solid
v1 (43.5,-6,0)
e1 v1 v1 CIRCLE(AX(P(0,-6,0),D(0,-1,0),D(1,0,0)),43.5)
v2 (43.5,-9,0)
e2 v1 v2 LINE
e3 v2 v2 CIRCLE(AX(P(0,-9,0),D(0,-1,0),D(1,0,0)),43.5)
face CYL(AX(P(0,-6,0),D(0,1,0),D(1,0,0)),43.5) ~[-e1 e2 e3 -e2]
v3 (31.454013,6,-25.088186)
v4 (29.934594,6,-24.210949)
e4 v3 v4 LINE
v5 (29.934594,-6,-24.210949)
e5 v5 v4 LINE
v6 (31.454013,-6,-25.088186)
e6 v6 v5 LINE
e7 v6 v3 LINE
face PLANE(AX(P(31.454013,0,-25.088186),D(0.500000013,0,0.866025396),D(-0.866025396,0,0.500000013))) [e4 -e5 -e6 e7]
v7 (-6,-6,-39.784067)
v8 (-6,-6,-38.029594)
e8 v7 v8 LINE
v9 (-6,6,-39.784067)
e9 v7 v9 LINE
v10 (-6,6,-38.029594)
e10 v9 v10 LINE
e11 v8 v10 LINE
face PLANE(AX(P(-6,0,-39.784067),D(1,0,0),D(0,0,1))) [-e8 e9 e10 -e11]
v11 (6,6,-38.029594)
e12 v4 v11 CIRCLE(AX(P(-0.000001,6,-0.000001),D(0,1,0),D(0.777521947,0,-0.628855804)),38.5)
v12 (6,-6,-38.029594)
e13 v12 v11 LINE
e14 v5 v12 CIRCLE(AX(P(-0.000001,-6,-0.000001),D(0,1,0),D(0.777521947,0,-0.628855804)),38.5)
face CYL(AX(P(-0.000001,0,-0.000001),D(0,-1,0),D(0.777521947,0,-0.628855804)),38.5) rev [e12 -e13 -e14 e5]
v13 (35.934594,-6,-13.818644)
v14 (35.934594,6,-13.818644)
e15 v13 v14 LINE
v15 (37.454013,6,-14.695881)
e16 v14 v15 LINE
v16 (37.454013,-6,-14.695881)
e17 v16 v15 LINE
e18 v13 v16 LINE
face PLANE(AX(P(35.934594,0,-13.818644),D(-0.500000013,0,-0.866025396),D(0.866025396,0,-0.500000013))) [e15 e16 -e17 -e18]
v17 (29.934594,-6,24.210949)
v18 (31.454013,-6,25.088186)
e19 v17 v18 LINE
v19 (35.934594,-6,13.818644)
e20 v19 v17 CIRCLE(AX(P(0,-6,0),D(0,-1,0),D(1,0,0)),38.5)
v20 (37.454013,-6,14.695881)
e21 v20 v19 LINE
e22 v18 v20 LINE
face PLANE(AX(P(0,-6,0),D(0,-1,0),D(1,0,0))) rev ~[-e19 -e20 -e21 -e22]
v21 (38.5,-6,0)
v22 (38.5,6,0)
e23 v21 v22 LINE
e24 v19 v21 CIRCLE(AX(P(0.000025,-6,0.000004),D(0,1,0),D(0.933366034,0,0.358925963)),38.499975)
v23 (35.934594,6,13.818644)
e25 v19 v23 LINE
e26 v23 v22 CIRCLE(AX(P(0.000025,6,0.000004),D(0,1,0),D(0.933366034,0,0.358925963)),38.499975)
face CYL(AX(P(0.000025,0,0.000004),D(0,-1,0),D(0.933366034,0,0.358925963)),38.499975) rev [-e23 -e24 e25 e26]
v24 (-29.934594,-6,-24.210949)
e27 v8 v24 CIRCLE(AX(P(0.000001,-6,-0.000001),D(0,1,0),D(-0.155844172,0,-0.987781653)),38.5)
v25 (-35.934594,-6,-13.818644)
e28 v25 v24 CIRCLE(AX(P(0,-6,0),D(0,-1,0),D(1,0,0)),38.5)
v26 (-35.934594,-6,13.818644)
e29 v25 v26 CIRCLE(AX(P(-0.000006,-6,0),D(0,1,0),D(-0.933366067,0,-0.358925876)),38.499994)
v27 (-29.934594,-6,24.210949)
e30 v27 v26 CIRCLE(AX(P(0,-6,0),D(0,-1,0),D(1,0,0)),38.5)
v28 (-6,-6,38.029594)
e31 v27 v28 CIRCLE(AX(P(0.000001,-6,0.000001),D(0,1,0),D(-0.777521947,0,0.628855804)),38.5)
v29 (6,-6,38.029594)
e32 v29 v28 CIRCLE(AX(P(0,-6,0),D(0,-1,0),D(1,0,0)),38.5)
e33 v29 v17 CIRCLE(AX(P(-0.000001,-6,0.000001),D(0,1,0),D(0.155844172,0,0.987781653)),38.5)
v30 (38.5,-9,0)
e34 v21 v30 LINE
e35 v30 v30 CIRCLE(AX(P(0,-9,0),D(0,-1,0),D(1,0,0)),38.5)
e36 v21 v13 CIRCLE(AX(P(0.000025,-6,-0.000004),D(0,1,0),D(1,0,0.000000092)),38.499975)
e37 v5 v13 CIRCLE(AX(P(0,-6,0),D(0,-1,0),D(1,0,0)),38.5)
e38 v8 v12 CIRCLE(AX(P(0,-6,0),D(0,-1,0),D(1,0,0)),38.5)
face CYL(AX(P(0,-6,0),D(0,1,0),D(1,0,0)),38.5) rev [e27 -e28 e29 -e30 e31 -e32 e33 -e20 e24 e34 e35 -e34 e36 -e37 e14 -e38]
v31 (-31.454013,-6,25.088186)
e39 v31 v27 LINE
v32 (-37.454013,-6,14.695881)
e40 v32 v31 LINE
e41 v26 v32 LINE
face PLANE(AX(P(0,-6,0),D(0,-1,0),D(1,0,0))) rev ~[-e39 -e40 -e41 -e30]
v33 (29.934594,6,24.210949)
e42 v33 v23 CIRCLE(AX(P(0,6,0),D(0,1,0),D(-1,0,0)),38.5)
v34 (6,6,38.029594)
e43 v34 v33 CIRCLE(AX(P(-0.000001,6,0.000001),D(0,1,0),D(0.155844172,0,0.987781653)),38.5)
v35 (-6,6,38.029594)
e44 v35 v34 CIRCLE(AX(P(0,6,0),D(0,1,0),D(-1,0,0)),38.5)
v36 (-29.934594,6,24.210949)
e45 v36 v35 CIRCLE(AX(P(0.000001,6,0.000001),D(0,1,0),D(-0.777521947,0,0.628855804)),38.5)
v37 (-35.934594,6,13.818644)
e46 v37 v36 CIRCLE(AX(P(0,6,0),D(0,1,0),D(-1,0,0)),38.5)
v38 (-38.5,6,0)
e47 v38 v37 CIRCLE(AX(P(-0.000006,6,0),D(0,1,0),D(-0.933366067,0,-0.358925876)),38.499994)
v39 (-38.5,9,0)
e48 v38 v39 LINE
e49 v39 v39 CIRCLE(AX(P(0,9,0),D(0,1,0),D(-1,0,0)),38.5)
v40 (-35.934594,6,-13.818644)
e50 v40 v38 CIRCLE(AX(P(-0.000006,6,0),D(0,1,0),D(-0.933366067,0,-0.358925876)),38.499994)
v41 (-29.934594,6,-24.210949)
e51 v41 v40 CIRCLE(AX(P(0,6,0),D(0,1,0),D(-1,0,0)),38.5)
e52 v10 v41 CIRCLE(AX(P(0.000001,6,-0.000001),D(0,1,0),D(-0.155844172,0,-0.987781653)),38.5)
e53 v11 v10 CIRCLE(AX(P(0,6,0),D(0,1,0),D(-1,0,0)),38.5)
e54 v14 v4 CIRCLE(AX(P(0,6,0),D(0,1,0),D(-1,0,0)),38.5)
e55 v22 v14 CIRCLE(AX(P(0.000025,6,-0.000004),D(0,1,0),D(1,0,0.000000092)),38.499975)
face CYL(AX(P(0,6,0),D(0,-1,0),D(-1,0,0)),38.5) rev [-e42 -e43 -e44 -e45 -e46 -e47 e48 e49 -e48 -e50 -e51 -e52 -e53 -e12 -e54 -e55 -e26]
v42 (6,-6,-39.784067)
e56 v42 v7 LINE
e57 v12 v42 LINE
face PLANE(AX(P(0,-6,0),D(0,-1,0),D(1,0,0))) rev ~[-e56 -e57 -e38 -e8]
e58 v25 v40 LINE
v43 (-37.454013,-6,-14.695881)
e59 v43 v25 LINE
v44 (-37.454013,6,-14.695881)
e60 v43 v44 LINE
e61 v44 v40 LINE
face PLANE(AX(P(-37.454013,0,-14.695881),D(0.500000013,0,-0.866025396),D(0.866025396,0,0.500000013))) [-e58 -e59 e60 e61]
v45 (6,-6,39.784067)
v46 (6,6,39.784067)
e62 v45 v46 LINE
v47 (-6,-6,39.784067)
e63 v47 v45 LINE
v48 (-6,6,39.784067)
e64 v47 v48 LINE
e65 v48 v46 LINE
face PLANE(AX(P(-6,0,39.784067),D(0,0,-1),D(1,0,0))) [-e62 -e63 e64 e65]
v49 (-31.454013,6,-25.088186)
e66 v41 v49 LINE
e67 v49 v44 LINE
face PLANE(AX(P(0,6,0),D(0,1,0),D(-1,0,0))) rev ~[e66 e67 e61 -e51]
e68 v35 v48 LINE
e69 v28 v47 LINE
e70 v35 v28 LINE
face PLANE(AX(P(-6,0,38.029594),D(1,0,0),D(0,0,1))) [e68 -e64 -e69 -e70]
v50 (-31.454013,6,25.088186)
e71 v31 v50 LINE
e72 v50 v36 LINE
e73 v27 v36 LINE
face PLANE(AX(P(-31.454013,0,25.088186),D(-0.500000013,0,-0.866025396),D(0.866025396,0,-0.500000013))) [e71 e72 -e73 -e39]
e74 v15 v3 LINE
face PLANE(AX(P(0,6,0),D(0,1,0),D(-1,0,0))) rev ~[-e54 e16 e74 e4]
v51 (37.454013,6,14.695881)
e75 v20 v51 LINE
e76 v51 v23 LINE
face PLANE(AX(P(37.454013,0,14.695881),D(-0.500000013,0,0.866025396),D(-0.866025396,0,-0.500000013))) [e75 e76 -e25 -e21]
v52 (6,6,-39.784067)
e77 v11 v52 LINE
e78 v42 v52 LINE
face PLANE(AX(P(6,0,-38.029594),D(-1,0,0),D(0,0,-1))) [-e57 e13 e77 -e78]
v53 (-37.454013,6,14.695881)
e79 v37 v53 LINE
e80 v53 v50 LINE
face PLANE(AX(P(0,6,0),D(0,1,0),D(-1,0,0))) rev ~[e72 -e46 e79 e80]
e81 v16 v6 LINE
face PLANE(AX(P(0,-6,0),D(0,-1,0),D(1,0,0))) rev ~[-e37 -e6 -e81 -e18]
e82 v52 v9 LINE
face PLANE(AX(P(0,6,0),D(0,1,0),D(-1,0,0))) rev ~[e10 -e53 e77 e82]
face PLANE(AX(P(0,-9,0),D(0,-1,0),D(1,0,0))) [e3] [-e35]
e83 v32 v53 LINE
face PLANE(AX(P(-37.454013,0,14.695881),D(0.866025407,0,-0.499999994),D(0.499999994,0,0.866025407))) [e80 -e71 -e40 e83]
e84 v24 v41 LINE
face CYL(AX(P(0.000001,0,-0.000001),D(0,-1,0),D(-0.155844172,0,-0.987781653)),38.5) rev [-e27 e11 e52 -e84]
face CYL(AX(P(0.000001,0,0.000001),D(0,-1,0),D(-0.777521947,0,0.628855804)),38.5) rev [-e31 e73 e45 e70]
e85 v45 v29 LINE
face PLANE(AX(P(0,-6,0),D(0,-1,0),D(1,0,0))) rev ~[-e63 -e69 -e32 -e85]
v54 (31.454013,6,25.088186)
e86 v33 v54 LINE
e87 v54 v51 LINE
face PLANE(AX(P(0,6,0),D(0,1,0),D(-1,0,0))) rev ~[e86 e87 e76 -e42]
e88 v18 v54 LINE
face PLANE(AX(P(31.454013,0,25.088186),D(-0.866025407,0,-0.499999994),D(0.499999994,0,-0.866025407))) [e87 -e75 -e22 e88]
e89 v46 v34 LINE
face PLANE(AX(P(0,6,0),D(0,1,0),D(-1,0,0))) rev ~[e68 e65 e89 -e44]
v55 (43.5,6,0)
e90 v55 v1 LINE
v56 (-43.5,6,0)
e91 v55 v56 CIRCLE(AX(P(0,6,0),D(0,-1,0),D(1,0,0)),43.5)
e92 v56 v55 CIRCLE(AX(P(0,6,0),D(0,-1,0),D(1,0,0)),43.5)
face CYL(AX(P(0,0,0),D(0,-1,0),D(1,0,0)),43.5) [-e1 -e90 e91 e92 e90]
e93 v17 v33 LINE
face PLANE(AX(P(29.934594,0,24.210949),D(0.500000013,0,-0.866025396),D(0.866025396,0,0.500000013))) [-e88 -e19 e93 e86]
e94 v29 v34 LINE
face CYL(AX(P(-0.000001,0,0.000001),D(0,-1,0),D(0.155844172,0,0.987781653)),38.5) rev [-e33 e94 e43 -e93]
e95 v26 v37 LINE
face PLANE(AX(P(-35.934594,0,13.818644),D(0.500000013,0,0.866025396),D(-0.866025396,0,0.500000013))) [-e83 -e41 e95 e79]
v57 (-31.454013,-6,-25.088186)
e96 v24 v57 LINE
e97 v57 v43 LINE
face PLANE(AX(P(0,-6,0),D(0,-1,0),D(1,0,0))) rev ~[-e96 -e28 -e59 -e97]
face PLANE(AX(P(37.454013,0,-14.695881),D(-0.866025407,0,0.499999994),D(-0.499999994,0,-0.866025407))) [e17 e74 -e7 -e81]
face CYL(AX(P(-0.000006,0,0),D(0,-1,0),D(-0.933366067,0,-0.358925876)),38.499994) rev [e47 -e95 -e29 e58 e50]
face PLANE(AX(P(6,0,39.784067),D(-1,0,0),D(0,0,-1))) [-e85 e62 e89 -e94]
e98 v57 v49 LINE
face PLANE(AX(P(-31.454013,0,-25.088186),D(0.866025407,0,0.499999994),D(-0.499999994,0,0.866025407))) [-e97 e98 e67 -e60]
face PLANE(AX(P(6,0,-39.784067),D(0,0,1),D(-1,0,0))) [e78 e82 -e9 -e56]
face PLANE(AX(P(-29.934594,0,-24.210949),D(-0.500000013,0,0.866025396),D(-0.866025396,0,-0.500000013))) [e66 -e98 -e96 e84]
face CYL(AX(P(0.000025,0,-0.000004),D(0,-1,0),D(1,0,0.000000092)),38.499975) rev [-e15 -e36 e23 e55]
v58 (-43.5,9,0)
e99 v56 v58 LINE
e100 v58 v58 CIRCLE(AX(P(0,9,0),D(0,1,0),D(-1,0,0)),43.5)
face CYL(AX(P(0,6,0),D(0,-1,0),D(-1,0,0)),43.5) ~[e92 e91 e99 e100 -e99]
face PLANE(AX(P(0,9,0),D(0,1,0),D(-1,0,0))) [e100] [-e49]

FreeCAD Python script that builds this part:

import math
import FreeCAD as App
import Part
import Sketcher
Q = App.Units.Quantity

doc = App.newDocument("Part")
body = doc.addObject("PartDesign::Body", "Body")

sketch1 = body.newObject("Sketcher::SketchObject", "Sketch")
sketch1.AttachmentSupport = (doc.getObject("XZ_Plane"), [""])
sketch1.MapMode = "FlatFace"
sketch1.addGeometry([
    Part.Circle(App.Vector(0, 0, 0), App.Vector(0, 0, 1), 43.5),
    Part.ArcOfCircle(Part.Circle(App.Vector(0, 0, 0), App.Vector(0, 0, 1), 38.5), math.radians(99), math.radians(141)),
    Part.LineSegment(App.Vector(-6, 38, 0), App.Vector(-6, 39.8, 0)),
    Part.LineSegment(App.Vector(-6, 39.8, 0), App.Vector(6, 39.8, 0)),
    Part.LineSegment(App.Vector(6, 39.8, 0), App.Vector(6, 38, 0)),
    Part.ArcOfCircle(Part.Circle(App.Vector(0, 0, 0), App.Vector(0, 0, 1), 38.5), math.radians(39), math.radians(81)),
    Part.LineSegment(App.Vector(29.9, 24.2, 0), App.Vector(31.5, 25.1, 0)),
    Part.LineSegment(App.Vector(31.5, 25.1, 0), App.Vector(37.5, 14.7, 0)),
    Part.LineSegment(App.Vector(37.5, 14.7, 0), App.Vector(35.9, 13.8, 0)),
    Part.ArcOfCircle(Part.Circle(App.Vector(0, 0, 0), App.Vector(0, 0, 1), 38.5), math.radians(0), math.radians(21)),
    Part.ArcOfCircle(Part.Circle(App.Vector(0, 0, 0), App.Vector(0, 0, 1), 38.5), math.radians(-21), math.radians(0)),
    Part.LineSegment(App.Vector(35.9, -13.8, 0), App.Vector(37.5, -14.7, 0)),
    Part.LineSegment(App.Vector(37.5, -14.7, 0), App.Vector(31.5, -25.1, 0)),
    Part.LineSegment(App.Vector(31.5, -25.1, 0), App.Vector(29.9, -24.2, 0)),
    Part.ArcOfCircle(Part.Circle(App.Vector(0, 0, 0), App.Vector(0, 0, 1), 38.5), math.radians(-81), math.radians(-39)),
    Part.LineSegment(App.Vector(6, -38, 0), App.Vector(6, -39.8, 0)),
    Part.LineSegment(App.Vector(6, -39.8, 0), App.Vector(-6, -39.8, 0)),
    Part.LineSegment(App.Vector(-6, -39.8, 0), App.Vector(-6, -38, 0)),
    Part.ArcOfCircle(Part.Circle(App.Vector(0, 0, 0), App.Vector(0, 0, 1), 38.5), math.radians(-141), math.radians(-99)),
    Part.LineSegment(App.Vector(-29.9, -24.2, 0), App.Vector(-31.5, -25.1, 0)),
    Part.LineSegment(App.Vector(-31.5, -25.1, 0), App.Vector(-37.5, -14.7, 0)),
    Part.LineSegment(App.Vector(-37.5, -14.7, 0), App.Vector(-35.9, -13.8, 0)),
    Part.ArcOfCircle(Part.Circle(App.Vector(0, 0, 0), App.Vector(0, 0, 1), 38.5), math.radians(159), math.radians(201)),
    Part.LineSegment(App.Vector(-35.9, 13.8, 0), App.Vector(-37.5, 14.7, 0)),
    Part.LineSegment(App.Vector(-37.5, 14.7, 0), App.Vector(-31.5, 25.1, 0)),
    Part.LineSegment(App.Vector(-31.5, 25.1, 0), App.Vector(-29.9, 24.2, 0)),
], False)
sketch1.addConstraint([
    Sketcher.Constraint("Coincident", 1, 1, 2, 1),
    Sketcher.Constraint("Coincident", 2, 2, 3, 1),
    Sketcher.Constraint("Coincident", 3, 2, 4, 1),
    Sketcher.Constraint("Coincident", 4, 2, 5, 2),
    Sketcher.Constraint("Coincident", 5, 1, 6, 1),
    Sketcher.Constraint("Coincident", 6, 2, 7, 1),
    Sketcher.Constraint("Coincident", 7, 2, 8, 1),
    Sketcher.Constraint("Coincident", 8, 2, 9, 2),
    Sketcher.Constraint("Tangent", 9, 1, 10, 2),
    Sketcher.Constraint("Coincident", 10, 1, 11, 1),
    Sketcher.Constraint("Coincident", 11, 2, 12, 1),
    Sketcher.Constraint("Coincident", 12, 2, 13, 1),
    Sketcher.Constraint("Coincident", 13, 2, 14, 2),
    Sketcher.Constraint("Coincident", 14, 1, 15, 1),
    Sketcher.Constraint("Coincident", 15, 2, 16, 1),
    Sketcher.Constraint("Coincident", 16, 2, 17, 1),
    Sketcher.Constraint("Coincident", 17, 2, 18, 2),
    Sketcher.Constraint("Coincident", 18, 1, 19, 1),
    Sketcher.Constraint("Coincident", 19, 2, 20, 1),
    Sketcher.Constraint("Coincident", 20, 2, 21, 1),
    Sketcher.Constraint("Coincident", 21, 2, 22, 2),
    Sketcher.Constraint("Coincident", 22, 1, 23, 1),
    Sketcher.Constraint("Coincident", 23, 2, 24, 1),
    Sketcher.Constraint("Coincident", 24, 2, 25, 1),
    Sketcher.Constraint("Coincident", 25, 2, 1, 2),
    Sketcher.Constraint("Vertical", 2),
    Sketcher.Constraint("Horizontal", 3),
    Sketcher.Constraint("Vertical", 4),
    Sketcher.Constraint("Vertical", 15),
    Sketcher.Constraint("Horizontal", 16),
    Sketcher.Constraint("Vertical", 17),
    Sketcher.Constraint("Coincident", 0, 3, -1, 1),
    Sketcher.Constraint("Coincident", 1, 3, -1, 1),
    Sketcher.Constraint("Coincident", 5, 3, -1, 1),
    Sketcher.Constraint("Coincident", 14, 3, -1, 1),
    Sketcher.Constraint("Coincident", 18, 3, -1, 1),
    Sketcher.Constraint("Coincident", 22, 3, -1, 1),
    Sketcher.Constraint("Equal", 1, 5),
    Sketcher.Constraint("Equal", 9, 10),
    Sketcher.Constraint("Equal", 5, 14),
    Sketcher.Constraint("Equal", 14, 18),
    Sketcher.Constraint("Symmetric", 2, 2, 15, 2, -1, 1),
    Sketcher.Constraint("Symmetric", 6, 2, 19, 2, -1, 1),
    Sketcher.Constraint("Symmetric", 7, 2, 20, 2, -1, 1),
    Sketcher.Constraint("Symmetric", 8, 2, 21, 2, -1, 1),
    Sketcher.Constraint("Symmetric", 10, 1, 22, 1, -1, 1),
    Sketcher.Constraint("Symmetric", 11, 2, 23, 2, -1, 1),
    Sketcher.Constraint("Symmetric", 12, 2, 24, 2, -1, 1),
    Sketcher.Constraint("Symmetric", 12, 2, 19, 2, -2),
    Sketcher.Constraint("Symmetric", 11, 2, 20, 2, -2),
    Sketcher.Constraint("PointOnObject", 9, 1, -1),
    Sketcher.Constraint("Perpendicular", 6, 7),
    Sketcher.Constraint("Perpendicular", 7, 8),
    Sketcher.Constraint("Perpendicular", 11, 12),
    Sketcher.Constraint("Perpendicular", 12, 13),
    Sketcher.Constraint("Parallel", 8, 19),
    Sketcher.Constraint("Perpendicular", 24, 25),
    Sketcher.Constraint("Horizontal", 1, 1, 4, 2),
    Sketcher.Constraint("Horizontal", 14, 1, 17, 2),
    Sketcher.Constraint("Equal", 6, 8),
    Sketcher.Constraint("Diameter", 0, Q("87 mm")),
    Sketcher.Constraint("Radius", 1, Q("38.5 mm")),
    Sketcher.Constraint("DistanceX", 3, 1, 3, 2, Q("12 mm")),
    Sketcher.Constraint("Angle", 6, Q("30.000001 deg")),
    Sketcher.Constraint("Distance", 7, Q("12 mm")),
    Sketcher.Constraint("DistanceX", -1, 1, 9, 1, Q("38.5 mm")),
    Sketcher.Constraint("Radius", 9, Q("38.499975 mm")),
    Sketcher.Constraint("DistanceY", 2, 1, 2, 2, Q("1.754473 mm")),
    Sketcher.Constraint("DistanceY", -1, 1, 7, 2, Q("14.695881 mm")),
])
pad1 = body.newObject("PartDesign::Pad", "Pad")
pad1.Profile = sketch1
pad1.Length = 12
pad1.Midplane = True

sketch2 = body.newObject("Sketcher::SketchObject", "Sketch001")
sketch2.AttachmentSupport = (doc.getObject("XZ_Plane"), [""])
sketch2.MapMode = "FlatFace"
sketch2.AttachmentOffset = App.Placement(App.Vector(0, 0, -6), App.Rotation())
sketch2.addGeometry([
    Part.Circle(App.Vector(0, 0, 0), App.Vector(0, 0, 1), 44),
    Part.Circle(App.Vector(0, 0, 0), App.Vector(0, 0, 1), 38),
], False)
sketch2.addConstraint([
    Sketcher.Constraint("Coincident", 0, 3, -1, 1),
    Sketcher.Constraint("Coincident", 1, 3, -1, 1),
    Sketcher.Constraint("Diameter", 0, Q("87 mm")),
    Sketcher.Constraint("Diameter", 1, Q("77 mm")),
])
pad2 = body.newObject("PartDesign::Pad", "Pad001")
pad2.Profile = sketch2
pad2.Length = 3
pad2.Reversed = True

sketch3 = body.newObject("Sketcher::SketchObject", "Sketch002")
sketch3.AttachmentSupport = (doc.getObject("XZ_Plane"), [""])
sketch3.MapMode = "FlatFace"
sketch3.AttachmentOffset = App.Placement(App.Vector(0, 0, 6), App.Rotation())
sketch3.addGeometry([
    Part.Circle(App.Vector(0, 0, 0), App.Vector(0, 0, 1), 44),
    Part.Circle(App.Vector(0, 0, 0), App.Vector(0, 0, 1), 38),
], False)
sketch3.addConstraint([
    Sketcher.Constraint("Coincident", 0, 3, -1, 1),
    Sketcher.Constraint("Coincident", 1, 3, -1, 1),
    Sketcher.Constraint("Diameter", 0, Q("87 mm")),
    Sketcher.Constraint("Diameter", 1, Q("77 mm")),
])
pad3 = body.newObject("PartDesign::Pad", "Pad002")
pad3.Profile = sketch3
pad3.Length = 3

doc.recompute()
